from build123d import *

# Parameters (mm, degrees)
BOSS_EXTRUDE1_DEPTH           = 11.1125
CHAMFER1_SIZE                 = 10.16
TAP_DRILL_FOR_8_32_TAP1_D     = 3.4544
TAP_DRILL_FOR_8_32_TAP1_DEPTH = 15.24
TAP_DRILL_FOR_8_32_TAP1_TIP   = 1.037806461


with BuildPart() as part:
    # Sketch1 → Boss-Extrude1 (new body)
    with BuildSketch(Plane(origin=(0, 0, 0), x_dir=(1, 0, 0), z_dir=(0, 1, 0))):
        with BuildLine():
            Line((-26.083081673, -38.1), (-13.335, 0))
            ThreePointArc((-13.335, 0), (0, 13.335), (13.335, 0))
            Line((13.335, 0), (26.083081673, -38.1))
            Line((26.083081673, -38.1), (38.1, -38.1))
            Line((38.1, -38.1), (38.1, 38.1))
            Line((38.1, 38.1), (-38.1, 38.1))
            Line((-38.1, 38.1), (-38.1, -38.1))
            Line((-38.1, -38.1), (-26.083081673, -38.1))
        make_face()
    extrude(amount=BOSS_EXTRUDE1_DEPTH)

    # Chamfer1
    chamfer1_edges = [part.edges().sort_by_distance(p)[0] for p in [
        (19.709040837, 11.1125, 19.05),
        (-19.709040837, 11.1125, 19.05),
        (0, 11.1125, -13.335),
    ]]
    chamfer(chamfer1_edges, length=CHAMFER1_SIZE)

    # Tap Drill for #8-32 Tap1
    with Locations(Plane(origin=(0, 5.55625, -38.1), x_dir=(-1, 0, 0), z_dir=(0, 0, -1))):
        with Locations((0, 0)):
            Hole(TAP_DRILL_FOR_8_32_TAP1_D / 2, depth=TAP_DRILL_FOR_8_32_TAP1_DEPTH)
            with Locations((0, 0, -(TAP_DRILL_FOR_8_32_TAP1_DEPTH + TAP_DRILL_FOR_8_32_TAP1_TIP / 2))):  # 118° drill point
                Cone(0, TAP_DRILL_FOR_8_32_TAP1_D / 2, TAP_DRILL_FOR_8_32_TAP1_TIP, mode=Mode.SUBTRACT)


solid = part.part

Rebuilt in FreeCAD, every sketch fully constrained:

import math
import FreeCAD as App
import Part
import Sketcher

V = App.Vector
Q = App.Units.Quantity


def edges_at(feature, points):
    """Names of the edges that pass closest to the given points."""
    edges = feature.Shape.Edges
    near = lambda p: min(range(len(edges)), key=lambda i: edges[i].distToShape(Part.Vertex(*p))[0])
    return sorted({f"Edge{near(p) + 1}" for p in points})

doc = App.newDocument("Part")
body = doc.addObject("PartDesign::Body", "Body")

# Sketch on XZ plane
sketch1 = body.newObject("Sketcher::SketchObject", "Sketch")
sketch1.AttachmentSupport = (doc.getObject("XZ_Plane"), [""])
sketch1.MapMode = "FlatFace"
sketch1.addGeometry([
    Part.LineSegment(V(-26.083082, 38.1, 0), V(-13.335, 0, 0)),  # 0
    Part.ArcOfCircle(Part.Circle(V(0, 0, 0), V(0, 0, 1), 13.335), math.radians(180), math.radians(360)),  # 1
    Part.LineSegment(V(13.335, 0, 0), V(26.083082, 38.1, 0)),  # 2
    Part.LineSegment(V(26.083082, 38.1, 0), V(38.1, 38.1, 0)),  # 3
    Part.LineSegment(V(38.1, 38.1, 0), V(38.1, -38.1, 0)),  # 4
    Part.LineSegment(V(38.1, -38.1, 0), V(-38.1, -38.1, 0)),  # 5
    Part.LineSegment(V(-38.1, -38.1, 0), V(-38.1, 38.1, 0)),  # 6
    Part.LineSegment(V(-38.1, 38.1, 0), V(-26.083082, 38.1, 0)),  # 7
], False)
sketch1.addConstraint([
    Sketcher.Constraint("Coincident", 0, 2, 1, 1),
    Sketcher.Constraint("Coincident", 1, 2, 2, 1),
    Sketcher.Constraint("Coincident", 2, 2, 3, 1),
    Sketcher.Constraint("Coincident", 3, 2, 4, 1),
    Sketcher.Constraint("Coincident", 4, 2, 5, 1),
    Sketcher.Constraint("Coincident", 5, 2, 6, 1),
    Sketcher.Constraint("Coincident", 6, 2, 7, 1),
    Sketcher.Constraint("Coincident", 7, 2, 0, 1),
    Sketcher.Constraint("Horizontal", 3),
    Sketcher.Constraint("Vertical", 4),
    Sketcher.Constraint("Horizontal", 5),
    Sketcher.Constraint("Vertical", 6),
    Sketcher.Constraint("Horizontal", 7),
    Sketcher.Constraint("Coincident", 1, 3, -1, 1),
    Sketcher.Constraint("Symmetric", 3, 2, 5, 2, -1, 1),
    Sketcher.Constraint("Symmetric", 2, 2, 7, 2, -2),
    Sketcher.Constraint("PointOnObject", 0, 2, -1),
    Sketcher.Constraint("PointOnObject", 1, 2, -1),
    Sketcher.Constraint("Equal", 5, 4),
    Sketcher.Constraint("DistanceX", 5, 2, 5, 1, Q("3 in")),
    Sketcher.Constraint("Radius", 1, Q("0.525 in")),
    Sketcher.Constraint("Angle", 0, Q("-71.5 deg")),
])
pad1 = body.newObject("PartDesign::Pad", "Pad")
pad1.Profile = sketch1
pad1.Length = Q("0.4375 in")
pad1.Reversed = True
doc.recompute()

chamfer = body.newObject("PartDesign::Chamfer", "Chamfer")
chamfer.Base = (pad1, edges_at(pad1, [(19.709, 11.113, 19.05), (-19.709, 11.113, 19.05), (0, 11.113, -13.335)]))
chamfer.Size = Q("0.4 in")

# Sketch on XY plane
sketch2 = body.newObject("Sketcher::SketchObject", "Sketch001")
sketch2.AttachmentSupport = (doc.getObject("XY_Plane"), [""])
sketch2.MapMode = "FlatFace"
sketch2.AttachmentOffset = App.Placement(V(0, 0, -1.5 * 25.4), App.Rotation())
sketch2.addGeometry(Part.Circle(V(0, 5.55625, 0), V(0, 0, 1), 1.7272), False)
sketch2.addConstraint([
    Sketcher.Constraint("PointOnObject", 0, 3, -2),
    Sketcher.Constraint("Diameter", 0, Q("0.136 in")),
    Sketcher.Constraint("DistanceY", -1, 1, 0, 3, Q("0.21875 in")),
])
doc.recompute()
hole = body.newObject("PartDesign::Hole", "Hole")
hole.Profile = sketch2
hole.ThreadType = "None"
hole.Diameter = Q("0.136 in")
hole.DepthType = "Dimension"
hole.Depth = Q("0.6 in")
hole.DrillPoint = "Angled"
hole.DrillPointAngle = 118
hole.Reversed = True

doc.recompute()
